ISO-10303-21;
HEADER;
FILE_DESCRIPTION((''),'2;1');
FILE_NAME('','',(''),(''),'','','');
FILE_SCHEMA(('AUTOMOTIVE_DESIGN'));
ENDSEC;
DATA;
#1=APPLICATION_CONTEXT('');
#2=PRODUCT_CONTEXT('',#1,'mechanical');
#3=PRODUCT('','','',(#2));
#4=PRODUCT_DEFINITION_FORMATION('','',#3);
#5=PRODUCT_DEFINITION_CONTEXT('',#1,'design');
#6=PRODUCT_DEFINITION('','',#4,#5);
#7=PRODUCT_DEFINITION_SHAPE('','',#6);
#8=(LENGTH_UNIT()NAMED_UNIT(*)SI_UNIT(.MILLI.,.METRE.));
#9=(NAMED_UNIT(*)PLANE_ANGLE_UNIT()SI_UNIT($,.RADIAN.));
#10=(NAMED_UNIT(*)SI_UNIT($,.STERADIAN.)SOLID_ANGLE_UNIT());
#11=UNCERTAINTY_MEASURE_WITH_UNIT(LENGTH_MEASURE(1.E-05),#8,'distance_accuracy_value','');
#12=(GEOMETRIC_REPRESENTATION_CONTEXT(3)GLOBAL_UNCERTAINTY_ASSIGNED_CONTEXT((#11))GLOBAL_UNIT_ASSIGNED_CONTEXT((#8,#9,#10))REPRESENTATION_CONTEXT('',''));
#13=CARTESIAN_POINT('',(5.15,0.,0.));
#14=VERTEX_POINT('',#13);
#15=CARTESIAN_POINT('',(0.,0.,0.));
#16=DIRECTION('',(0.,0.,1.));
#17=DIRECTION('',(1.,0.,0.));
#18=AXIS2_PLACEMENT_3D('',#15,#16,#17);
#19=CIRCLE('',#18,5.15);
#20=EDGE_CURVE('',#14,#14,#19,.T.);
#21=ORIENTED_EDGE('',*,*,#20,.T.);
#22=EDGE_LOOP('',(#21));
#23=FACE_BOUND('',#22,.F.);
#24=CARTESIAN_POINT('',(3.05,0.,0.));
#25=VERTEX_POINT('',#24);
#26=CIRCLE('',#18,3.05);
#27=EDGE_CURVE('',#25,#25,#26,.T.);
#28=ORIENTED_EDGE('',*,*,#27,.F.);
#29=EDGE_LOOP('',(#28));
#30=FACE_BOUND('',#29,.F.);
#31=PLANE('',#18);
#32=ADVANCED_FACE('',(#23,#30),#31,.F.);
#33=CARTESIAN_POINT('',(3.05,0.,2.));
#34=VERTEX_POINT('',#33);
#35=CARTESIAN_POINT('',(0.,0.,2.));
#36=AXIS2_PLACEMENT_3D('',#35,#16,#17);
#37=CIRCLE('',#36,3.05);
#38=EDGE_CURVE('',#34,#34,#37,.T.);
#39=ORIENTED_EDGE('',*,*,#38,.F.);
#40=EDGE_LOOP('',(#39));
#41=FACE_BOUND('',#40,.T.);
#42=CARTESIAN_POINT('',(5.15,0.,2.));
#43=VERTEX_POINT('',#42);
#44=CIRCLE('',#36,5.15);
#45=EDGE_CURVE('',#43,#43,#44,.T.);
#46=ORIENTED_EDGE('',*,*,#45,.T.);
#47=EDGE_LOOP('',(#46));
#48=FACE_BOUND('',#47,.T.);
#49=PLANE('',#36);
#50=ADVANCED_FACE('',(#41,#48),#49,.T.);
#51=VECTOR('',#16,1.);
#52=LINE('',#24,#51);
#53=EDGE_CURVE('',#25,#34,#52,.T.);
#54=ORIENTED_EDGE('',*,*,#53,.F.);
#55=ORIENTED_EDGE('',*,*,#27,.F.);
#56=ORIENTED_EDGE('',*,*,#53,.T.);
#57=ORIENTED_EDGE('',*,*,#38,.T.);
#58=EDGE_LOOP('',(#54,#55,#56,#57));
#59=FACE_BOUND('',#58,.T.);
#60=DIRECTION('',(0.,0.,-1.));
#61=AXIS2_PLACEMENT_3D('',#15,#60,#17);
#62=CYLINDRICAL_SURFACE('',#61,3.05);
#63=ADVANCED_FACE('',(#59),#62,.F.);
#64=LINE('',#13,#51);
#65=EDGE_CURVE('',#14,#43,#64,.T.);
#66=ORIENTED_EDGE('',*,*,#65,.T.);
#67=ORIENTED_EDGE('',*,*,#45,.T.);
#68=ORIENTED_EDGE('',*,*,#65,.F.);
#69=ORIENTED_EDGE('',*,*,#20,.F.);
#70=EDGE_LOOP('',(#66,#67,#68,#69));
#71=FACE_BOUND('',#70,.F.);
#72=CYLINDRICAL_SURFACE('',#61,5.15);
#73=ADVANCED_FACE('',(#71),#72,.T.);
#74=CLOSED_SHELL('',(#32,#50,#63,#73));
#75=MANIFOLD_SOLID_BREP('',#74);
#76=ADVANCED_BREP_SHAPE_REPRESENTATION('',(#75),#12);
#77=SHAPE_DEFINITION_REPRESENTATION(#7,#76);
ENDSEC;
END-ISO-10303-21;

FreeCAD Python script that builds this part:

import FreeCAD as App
import Part
import Sketcher
from FreeCAD import Vector
Q = App.Units.Quantity

doc = App.newDocument("Part")
body = doc.addObject("PartDesign::Body", "Body")

# Sketch on XY plane
sketch1 = body.newObject("Sketcher::SketchObject", "Sketch")
sketch1.AttachmentSupport = (doc.getObject("XY_Plane"), [""])
sketch1.MapMode = "FlatFace"
sketch1.addGeometry(Part.Circle(Vector(0, 0, 0), Vector(0, 0, 1), 5.15), False)
sketch1.addGeometry(Part.Circle(Vector(0, 0, 0), Vector(0, 0, 1), 3.05), False)
sketch1.addConstraint(Sketcher.Constraint("Coincident", 0, 3, -1, 1))
sketch1.addConstraint(Sketcher.Constraint("Coincident", 1, 3, -1, 1))
sketch1.addConstraint(Sketcher.Constraint("Diameter", 0, Q("10.3 mm")))
sketch1.addConstraint(Sketcher.Constraint("Diameter", 1, Q("6.1 mm")))
pad1 = body.newObject("PartDesign::Pad", "Pad")
pad1.Profile = sketch1
pad1.Length = 2

doc.recompute()
